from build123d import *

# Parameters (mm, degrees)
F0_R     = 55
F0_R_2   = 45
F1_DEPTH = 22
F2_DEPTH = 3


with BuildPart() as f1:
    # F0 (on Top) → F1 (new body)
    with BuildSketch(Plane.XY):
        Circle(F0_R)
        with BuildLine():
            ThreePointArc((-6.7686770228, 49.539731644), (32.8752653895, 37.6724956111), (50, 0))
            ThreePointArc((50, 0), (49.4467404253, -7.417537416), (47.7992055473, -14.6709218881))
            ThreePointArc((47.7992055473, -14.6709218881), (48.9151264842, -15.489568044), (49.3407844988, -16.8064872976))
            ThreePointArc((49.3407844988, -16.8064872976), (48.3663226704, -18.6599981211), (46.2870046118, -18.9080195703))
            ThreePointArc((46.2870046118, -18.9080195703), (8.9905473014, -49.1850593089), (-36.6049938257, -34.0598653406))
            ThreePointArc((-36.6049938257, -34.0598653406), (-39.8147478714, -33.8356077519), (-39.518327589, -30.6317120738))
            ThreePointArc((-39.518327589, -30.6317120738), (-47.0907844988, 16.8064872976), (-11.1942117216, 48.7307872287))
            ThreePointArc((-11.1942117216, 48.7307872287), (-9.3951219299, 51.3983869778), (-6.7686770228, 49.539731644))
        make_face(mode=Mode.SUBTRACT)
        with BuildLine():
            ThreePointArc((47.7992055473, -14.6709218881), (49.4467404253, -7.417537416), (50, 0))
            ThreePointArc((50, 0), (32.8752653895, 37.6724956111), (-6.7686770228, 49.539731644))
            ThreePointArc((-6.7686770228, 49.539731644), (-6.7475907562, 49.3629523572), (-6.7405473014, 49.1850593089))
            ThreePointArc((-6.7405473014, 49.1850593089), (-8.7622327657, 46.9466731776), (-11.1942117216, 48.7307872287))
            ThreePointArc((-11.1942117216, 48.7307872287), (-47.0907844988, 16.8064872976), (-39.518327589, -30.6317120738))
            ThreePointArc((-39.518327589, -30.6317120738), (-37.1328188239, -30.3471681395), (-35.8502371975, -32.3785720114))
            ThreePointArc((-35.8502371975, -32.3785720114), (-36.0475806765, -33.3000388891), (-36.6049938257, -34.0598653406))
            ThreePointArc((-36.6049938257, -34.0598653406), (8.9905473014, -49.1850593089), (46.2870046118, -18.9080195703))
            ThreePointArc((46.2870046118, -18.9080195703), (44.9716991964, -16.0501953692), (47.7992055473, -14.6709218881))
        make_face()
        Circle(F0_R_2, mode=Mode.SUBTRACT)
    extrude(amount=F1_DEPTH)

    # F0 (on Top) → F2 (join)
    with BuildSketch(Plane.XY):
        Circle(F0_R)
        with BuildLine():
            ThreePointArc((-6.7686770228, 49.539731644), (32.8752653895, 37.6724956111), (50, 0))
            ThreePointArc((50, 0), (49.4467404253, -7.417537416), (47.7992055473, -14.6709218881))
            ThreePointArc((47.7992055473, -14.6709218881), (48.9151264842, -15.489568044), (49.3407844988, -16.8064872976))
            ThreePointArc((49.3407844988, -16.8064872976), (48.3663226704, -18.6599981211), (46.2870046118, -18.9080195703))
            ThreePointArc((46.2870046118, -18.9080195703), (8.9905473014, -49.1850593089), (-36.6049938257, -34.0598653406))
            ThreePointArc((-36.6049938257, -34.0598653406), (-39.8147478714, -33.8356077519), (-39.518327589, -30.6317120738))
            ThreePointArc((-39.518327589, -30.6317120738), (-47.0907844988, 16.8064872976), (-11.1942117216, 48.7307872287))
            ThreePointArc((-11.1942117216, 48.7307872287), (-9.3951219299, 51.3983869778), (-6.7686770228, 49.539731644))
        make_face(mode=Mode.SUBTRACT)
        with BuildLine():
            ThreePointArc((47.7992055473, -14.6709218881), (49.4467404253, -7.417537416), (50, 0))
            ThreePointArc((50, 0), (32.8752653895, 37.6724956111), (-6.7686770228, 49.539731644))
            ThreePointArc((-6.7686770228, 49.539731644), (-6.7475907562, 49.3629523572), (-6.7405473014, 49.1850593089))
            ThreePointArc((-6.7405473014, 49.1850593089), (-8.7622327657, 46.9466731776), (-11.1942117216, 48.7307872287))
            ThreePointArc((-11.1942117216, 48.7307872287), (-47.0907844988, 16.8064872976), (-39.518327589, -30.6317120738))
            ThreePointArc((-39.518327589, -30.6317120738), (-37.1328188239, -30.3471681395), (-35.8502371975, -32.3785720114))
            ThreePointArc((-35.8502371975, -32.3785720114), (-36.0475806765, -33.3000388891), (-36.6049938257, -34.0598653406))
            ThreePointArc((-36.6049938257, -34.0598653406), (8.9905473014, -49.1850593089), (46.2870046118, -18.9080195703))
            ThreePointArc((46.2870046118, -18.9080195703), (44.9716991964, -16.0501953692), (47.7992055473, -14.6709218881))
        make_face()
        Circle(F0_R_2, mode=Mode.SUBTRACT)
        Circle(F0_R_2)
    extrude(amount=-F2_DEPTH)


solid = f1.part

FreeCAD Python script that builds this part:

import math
import FreeCAD as App
import Part
import Sketcher
from FreeCAD import Vector

doc = App.newDocument("Part")
body = doc.addObject("PartDesign::Body", "Body")

# Sketch on XY plane
sketch1 = body.newObject("Sketcher::SketchObject", "Sketch")
sketch1.AttachmentSupport = (doc.getObject("XY_Plane"), [""])
sketch1.MapMode = "FlatFace"
sketch1.addGeometry([
    Part.Circle(Vector(0, 0, 0), Vector(0, 0, 1), 55),  # 0
    Part.ArcOfCircle(Part.Circle(Vector(-38.1, -32.38, 0), Vector(0, 0, 1), 2.25), math.radians(129), math.radians(312)),  # 1
    Part.ArcOfCircle(Part.Circle(Vector(-38.1, -32.38, 0), Vector(0, 0, 1), 2.25), math.radians(0), math.radians(129)),  # 2
    Part.ArcOfCircle(Part.Circle(Vector(-38.1, -32.38, 0), Vector(0, 0, 1), 2.25), math.radians(-48), math.radians(0)),  # 3
    Part.Circle(Vector(0, 0, 0), Vector(0, 0, 1), 45),  # 4
    Part.ArcOfCircle(Part.Circle(Vector(47.09, -16.81, 0), Vector(0, 0, 1), 2.25), math.radians(-111), math.radians(0)),  # 5
    Part.ArcOfCircle(Part.Circle(Vector(47.09, -16.81, 0), Vector(0, 0, 1), 2.25), math.radians(72), math.radians(249)),  # 6
    Part.ArcOfCircle(Part.Circle(Vector(47.09, -16.81, 0), Vector(0, 0, 1), 2.25), math.radians(0), math.radians(72)),  # 7
    Part.ArcOfCircle(Part.Circle(Vector(-8.99, 49.19, 0), Vector(0, 0, 1), 2.25), math.radians(9), math.radians(192)),  # 8
    Part.ArcOfCircle(Part.Circle(Vector(-8.99, 49.19, 0), Vector(0, 0, 1), 2.25), math.radians(0), math.radians(9.07)),  # 9
    Part.ArcOfCircle(Part.Circle(Vector(-8.99, 49.19, 0), Vector(0, 0, 1), 2.25), math.radians(-168), math.radians(0)),  # 10
], False)
sketch1.addConstraint([
    Sketcher.Constraint("Tangent", 1, 1, 2, 2),
    Sketcher.Constraint("Tangent", 2, 1, 3, 2),
    Sketcher.Constraint("Tangent", 3, 1, 1, 2),
    Sketcher.Constraint("Tangent", 5, 1, 6, 2),
    Sketcher.Constraint("Tangent", 6, 1, 7, 2),
    Sketcher.Constraint("Tangent", 7, 1, 5, 2),
    Sketcher.Constraint("Tangent", 8, 1, 9, 2),
    Sketcher.Constraint("Tangent", 9, 1, 10, 2),
    Sketcher.Constraint("Tangent", 10, 1, 8, 2),
    Sketcher.Constraint("Coincident", 0, 3, -1, 1),
    Sketcher.Constraint("Coincident", 4, 3, -1, 1),
    Sketcher.Constraint("Equal", 3, 5),
    Sketcher.Constraint("Equal", 7, 8),
    Sketcher.Constraint("Horizontal", 3, 3, 2, 1),
    Sketcher.Constraint("Horizontal", 6, 3, 7, 1),
    Sketcher.Constraint("Horizontal", 10, 3, 9, 1),
    Sketcher.Constraint("Diameter", 0, 110.0),
    Sketcher.Constraint("Diameter", 4, 90.0),
    Sketcher.Constraint("Radius", 1, 2.25),
    Sketcher.Constraint("DistanceX", 5, 1, 6, 1, 1.512201),
    Sketcher.Constraint("DistanceY", -1, 1, 8, 3, 49.185059),
    Sketcher.Constraint("DistanceY", 5, 1, -1, 1, 18.90802),
    Sketcher.Constraint("DistanceY", 6, 1, -1, 1, 14.670922),
    Sketcher.Constraint("DistanceY", -1, 1, 8, 1, 49.539732),
    Sketcher.Constraint("DistanceX", 10, 1, -1, 1, 11.194212),
    Sketcher.Constraint("DistanceX", 2, 3, 5, 3, 85.191022),
    Sketcher.Constraint("DistanceX", 2, 3, 8, 3, 29.10969),
    Sketcher.Constraint("DistanceY", 2, 3, 8, 3, 81.563631),
    Sketcher.Constraint("DistanceX", 1, 1, 1, 3, 1.41809),
    Sketcher.Constraint("DistanceX", 1, 3, -1, 1, 38.100237),
    Sketcher.Constraint("DistanceX", 3, 1, -1, 1, 36.604994),
])
pad1 = body.newObject("PartDesign::Pad", "Pad")
pad1.Profile = sketch1
pad1.Length = 22

# Sketch on XY plane
sketch2 = body.newObject("Sketcher::SketchObject", "Sketch001")
sketch2.AttachmentSupport = (doc.getObject("XY_Plane"), [""])
sketch2.MapMode = "FlatFace"
sketch2.addGeometry([
    Part.Circle(Vector(0, 0, 0), Vector(0, 0, 1), 55),  # 0
    Part.ArcOfCircle(Part.Circle(Vector(-38.1, -32.38, 0), Vector(0, 0, 1), 2.25), math.radians(129), math.radians(312)),  # 1
    Part.ArcOfCircle(Part.Circle(Vector(-38.1, -32.38, 0), Vector(0, 0, 1), 2.25), math.radians(0), math.radians(129)),  # 2
    Part.ArcOfCircle(Part.Circle(Vector(-38.1, -32.38, 0), Vector(0, 0, 1), 2.25), math.radians(-48), math.radians(0)),  # 3
    Part.ArcOfCircle(Part.Circle(Vector(47.09, -16.81, 0), Vector(0, 0, 1), 2.25), math.radians(-111), math.radians(0)),  # 4
    Part.ArcOfCircle(Part.Circle(Vector(47.09, -16.81, 0), Vector(0, 0, 1), 2.25), math.radians(72), math.radians(249)),  # 5
    Part.ArcOfCircle(Part.Circle(Vector(47.09, -16.81, 0), Vector(0, 0, 1), 2.25), math.radians(0), math.radians(72)),  # 6
    Part.ArcOfCircle(Part.Circle(Vector(-8.99, 49.19, 0), Vector(0, 0, 1), 2.25), math.radians(9), math.radians(192)),  # 7
    Part.ArcOfCircle(Part.Circle(Vector(-8.99, 49.19, 0), Vector(0, 0, 1), 2.25), math.radians(0), math.radians(9.07)),  # 8
    Part.ArcOfCircle(Part.Circle(Vector(-8.99, 49.19, 0), Vector(0, 0, 1), 2.25), math.radians(-168), math.radians(0)),  # 9
], False)
sketch2.addConstraint([
    Sketcher.Constraint("Tangent", 1, 1, 2, 2),
    Sketcher.Constraint("Tangent", 2, 1, 3, 2),
    Sketcher.Constraint("Tangent", 3, 1, 1, 2),
    Sketcher.Constraint("Tangent", 4, 1, 5, 2),
    Sketcher.Constraint("Tangent", 5, 1, 6, 2),
    Sketcher.Constraint("Tangent", 6, 1, 4, 2),
    Sketcher.Constraint("Tangent", 7, 1, 8, 2),
    Sketcher.Constraint("Tangent", 8, 1, 9, 2),
    Sketcher.Constraint("Tangent", 9, 1, 7, 2),
    Sketcher.Constraint("Coincident", 0, 3, -1, 1),
    Sketcher.Constraint("Equal", 3, 4),
    Sketcher.Constraint("Equal", 6, 7),
    Sketcher.Constraint("Horizontal", 3, 3, 2, 1),
    Sketcher.Constraint("Horizontal", 5, 3, 6, 1),
    Sketcher.Constraint("Horizontal", 9, 3, 8, 1),
    Sketcher.Constraint("Diameter", 0, 110.0),
    Sketcher.Constraint("Radius", 1, 2.25),
    Sketcher.Constraint("DistanceX", 4, 1, 5, 1, 1.512201),
    Sketcher.Constraint("DistanceY", -1, 1, 7, 3, 49.185059),
    Sketcher.Constraint("DistanceY", 4, 1, -1, 1, 18.90802),
    Sketcher.Constraint("DistanceY", 5, 1, -1, 1, 14.670922),
    Sketcher.Constraint("DistanceY", -1, 1, 7, 1, 49.539732),
    Sketcher.Constraint("DistanceX", 9, 1, -1, 1, 11.194212),
    Sketcher.Constraint("DistanceX", 2, 3, 4, 3, 85.191022),
    Sketcher.Constraint("DistanceX", 2, 3, 7, 3, 29.10969),
    Sketcher.Constraint("DistanceY", 2, 3, 7, 3, 81.563631),
    Sketcher.Constraint("DistanceX", 1, 1, 1, 3, 1.41809),
    Sketcher.Constraint("DistanceX", 1, 3, -1, 1, 38.100237),
    Sketcher.Constraint("DistanceX", 3, 1, -1, 1, 36.604994),
])
pad2 = body.newObject("PartDesign::Pad", "Pad001")
pad2.Profile = sketch2
pad2.Length = 3
pad2.Reversed = True

doc.recompute()
